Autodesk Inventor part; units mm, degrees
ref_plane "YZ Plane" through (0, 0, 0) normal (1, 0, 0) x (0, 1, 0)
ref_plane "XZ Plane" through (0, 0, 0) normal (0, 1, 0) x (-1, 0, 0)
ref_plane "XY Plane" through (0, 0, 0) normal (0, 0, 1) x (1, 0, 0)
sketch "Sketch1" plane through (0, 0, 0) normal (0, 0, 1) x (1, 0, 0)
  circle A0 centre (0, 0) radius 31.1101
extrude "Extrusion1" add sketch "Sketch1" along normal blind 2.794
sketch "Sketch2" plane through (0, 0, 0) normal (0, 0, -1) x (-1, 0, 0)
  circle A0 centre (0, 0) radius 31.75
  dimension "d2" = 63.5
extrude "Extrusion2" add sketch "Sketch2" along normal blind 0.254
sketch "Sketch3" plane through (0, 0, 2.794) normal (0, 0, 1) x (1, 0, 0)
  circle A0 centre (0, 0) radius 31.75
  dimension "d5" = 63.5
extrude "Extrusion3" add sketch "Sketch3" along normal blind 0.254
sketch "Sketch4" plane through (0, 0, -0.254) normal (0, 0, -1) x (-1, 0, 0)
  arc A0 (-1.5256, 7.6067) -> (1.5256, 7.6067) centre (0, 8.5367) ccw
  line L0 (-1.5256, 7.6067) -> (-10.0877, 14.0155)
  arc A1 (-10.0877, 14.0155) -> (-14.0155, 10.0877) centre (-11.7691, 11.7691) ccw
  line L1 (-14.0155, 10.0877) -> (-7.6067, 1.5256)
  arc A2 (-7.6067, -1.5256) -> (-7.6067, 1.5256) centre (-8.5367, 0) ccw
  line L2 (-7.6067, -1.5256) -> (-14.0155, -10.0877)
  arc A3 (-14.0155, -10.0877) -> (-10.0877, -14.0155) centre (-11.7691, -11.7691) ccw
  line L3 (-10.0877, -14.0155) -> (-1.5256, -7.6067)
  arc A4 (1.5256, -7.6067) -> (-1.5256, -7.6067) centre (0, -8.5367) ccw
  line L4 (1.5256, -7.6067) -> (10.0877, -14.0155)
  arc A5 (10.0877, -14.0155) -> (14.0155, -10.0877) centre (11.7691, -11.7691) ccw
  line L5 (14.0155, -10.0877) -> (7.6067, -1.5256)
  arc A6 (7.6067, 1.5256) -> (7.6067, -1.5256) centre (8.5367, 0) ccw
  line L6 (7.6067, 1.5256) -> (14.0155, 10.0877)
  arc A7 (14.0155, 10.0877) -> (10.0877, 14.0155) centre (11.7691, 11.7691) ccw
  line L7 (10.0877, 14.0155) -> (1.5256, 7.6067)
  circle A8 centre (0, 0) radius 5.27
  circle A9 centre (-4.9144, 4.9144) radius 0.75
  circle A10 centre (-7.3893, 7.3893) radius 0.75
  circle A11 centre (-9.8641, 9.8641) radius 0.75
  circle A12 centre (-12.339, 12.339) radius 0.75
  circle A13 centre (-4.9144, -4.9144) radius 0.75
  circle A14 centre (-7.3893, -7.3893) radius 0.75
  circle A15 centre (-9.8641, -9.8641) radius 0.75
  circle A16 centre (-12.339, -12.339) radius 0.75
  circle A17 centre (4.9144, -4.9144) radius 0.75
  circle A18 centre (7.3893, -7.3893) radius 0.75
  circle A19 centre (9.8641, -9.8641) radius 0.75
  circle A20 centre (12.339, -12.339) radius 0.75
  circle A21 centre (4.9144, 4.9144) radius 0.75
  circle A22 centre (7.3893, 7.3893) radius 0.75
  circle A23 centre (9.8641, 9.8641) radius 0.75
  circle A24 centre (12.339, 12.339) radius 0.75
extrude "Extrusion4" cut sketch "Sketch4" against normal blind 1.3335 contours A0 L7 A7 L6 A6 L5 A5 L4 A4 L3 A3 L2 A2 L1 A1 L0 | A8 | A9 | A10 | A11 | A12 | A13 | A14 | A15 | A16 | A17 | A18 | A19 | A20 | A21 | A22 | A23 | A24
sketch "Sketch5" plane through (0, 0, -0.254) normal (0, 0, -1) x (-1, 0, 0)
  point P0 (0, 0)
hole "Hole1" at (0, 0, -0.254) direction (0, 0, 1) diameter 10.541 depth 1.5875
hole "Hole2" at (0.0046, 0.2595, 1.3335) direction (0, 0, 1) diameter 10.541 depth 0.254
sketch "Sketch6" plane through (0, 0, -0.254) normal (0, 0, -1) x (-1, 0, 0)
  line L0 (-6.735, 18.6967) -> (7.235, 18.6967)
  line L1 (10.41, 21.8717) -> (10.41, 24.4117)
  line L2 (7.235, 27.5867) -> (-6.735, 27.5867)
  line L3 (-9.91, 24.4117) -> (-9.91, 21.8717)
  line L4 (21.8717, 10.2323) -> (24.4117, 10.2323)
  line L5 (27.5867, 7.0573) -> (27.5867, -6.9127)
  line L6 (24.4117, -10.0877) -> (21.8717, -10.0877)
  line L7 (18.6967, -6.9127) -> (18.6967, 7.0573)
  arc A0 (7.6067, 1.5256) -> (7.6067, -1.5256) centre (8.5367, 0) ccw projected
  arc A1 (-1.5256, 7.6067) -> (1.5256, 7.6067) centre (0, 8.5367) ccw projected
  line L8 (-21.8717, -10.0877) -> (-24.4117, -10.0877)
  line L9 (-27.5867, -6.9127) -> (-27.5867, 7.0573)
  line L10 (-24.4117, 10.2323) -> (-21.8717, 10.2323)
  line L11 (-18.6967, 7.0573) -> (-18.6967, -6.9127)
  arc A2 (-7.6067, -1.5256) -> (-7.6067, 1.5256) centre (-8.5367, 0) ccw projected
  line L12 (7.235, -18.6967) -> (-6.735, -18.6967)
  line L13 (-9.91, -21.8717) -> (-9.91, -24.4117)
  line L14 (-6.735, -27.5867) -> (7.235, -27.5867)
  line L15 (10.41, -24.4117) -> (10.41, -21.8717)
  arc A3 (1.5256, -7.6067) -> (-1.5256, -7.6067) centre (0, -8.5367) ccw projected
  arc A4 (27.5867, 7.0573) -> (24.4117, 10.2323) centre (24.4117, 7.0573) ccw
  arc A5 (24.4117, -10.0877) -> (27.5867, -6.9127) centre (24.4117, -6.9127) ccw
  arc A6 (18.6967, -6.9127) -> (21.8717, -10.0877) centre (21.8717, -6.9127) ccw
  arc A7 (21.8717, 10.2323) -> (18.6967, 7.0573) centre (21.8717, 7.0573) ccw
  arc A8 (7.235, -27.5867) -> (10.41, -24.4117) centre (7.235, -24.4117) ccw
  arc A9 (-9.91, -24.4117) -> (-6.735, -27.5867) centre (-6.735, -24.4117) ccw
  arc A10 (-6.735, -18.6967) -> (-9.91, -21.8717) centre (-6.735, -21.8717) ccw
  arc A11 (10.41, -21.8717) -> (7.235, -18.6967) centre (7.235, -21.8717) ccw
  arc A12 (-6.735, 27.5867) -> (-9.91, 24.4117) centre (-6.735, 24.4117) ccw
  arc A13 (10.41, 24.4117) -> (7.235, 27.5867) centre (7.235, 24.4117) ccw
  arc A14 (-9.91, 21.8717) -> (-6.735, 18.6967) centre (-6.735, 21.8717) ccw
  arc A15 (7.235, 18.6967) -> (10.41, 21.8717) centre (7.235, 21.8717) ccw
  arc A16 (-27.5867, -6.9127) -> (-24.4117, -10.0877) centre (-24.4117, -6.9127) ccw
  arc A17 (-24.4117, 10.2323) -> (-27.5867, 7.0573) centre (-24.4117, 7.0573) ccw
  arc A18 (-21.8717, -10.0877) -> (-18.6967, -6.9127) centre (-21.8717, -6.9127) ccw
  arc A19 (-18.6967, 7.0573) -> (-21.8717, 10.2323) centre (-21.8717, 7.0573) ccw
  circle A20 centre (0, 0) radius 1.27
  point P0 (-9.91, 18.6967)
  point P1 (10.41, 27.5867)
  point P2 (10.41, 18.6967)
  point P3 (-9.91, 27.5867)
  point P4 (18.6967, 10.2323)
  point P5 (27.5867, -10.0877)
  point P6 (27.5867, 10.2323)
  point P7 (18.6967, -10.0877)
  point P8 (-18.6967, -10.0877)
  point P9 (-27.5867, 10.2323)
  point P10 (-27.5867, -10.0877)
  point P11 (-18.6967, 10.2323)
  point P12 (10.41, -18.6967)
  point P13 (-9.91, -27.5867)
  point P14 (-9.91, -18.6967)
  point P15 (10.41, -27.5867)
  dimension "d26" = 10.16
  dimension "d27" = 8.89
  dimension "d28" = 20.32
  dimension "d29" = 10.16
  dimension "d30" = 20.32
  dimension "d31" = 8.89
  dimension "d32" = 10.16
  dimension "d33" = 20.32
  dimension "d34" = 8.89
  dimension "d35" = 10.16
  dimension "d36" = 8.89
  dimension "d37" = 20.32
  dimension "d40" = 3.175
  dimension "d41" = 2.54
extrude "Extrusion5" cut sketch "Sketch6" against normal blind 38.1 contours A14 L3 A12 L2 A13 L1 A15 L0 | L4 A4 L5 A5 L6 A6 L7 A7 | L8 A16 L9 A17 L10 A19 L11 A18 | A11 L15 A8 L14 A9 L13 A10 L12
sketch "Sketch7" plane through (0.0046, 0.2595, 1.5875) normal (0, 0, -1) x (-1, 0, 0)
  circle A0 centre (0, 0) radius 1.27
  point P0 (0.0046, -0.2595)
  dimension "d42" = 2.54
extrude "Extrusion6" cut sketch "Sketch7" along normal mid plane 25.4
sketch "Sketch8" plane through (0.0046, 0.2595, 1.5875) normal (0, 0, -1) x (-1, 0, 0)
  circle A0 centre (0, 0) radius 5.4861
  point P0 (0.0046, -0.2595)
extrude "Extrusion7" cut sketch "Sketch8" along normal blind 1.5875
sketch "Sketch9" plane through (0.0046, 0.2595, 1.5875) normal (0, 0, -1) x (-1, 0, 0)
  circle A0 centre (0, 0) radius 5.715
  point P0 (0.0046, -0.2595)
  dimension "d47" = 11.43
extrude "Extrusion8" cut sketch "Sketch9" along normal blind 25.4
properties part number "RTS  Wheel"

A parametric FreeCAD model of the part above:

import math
import FreeCAD as App
import Part
import Sketcher
Q = App.Units.Quantity

doc = App.newDocument("Part")
body = doc.addObject("PartDesign::Body", "Body")

# Sketch on XY plane
sketch1 = body.newObject("Sketcher::SketchObject", "Sketch")
sketch1.AttachmentSupport = (doc.getObject("XY_Plane"), [""])
sketch1.MapMode = "FlatFace"
sketch1.addGeometry(Part.Circle(App.Vector(0, 0, 0), App.Vector(0, 0, 1), 31), False)
sketch1.addConstraint([
    Sketcher.Constraint("Coincident", 0, 3, -1, 1),
    Sketcher.Constraint("Diameter", 0, 62.2202),
])
pad1 = body.newObject("PartDesign::Pad", "Pad")
pad1.Profile = sketch1
pad1.Length = Q("0.11 in")

# Sketch on XY plane
sketch2 = body.newObject("Sketcher::SketchObject", "Sketch001")
sketch2.AttachmentSupport = (doc.getObject("XY_Plane"), [""])
sketch2.MapMode = "FlatFace"
sketch2.addGeometry(Part.Circle(App.Vector(0, 0, 0), App.Vector(0, 0, 1), 32), False)
sketch2.addConstraint([
    Sketcher.Constraint("Coincident", 0, 3, -1, 1),
    Sketcher.Constraint("Diameter", 0, Q("2.5 in")),
])
pad2 = body.newObject("PartDesign::Pad", "Pad001")
pad2.Profile = sketch2
pad2.Length = Q("0.01 in")
pad2.Reversed = True

# Sketch on XY plane
sketch3 = body.newObject("Sketcher::SketchObject", "Sketch002")
sketch3.AttachmentSupport = (doc.getObject("XY_Plane"), [""])
sketch3.MapMode = "FlatFace"
sketch3.AttachmentOffset = App.Placement(App.Vector(0, 0, 0.11 * 25.4), App.Rotation())
sketch3.addGeometry(Part.Circle(App.Vector(0, 0, 0), App.Vector(0, 0, 1), 32), False)
sketch3.addConstraint([
    Sketcher.Constraint("Coincident", 0, 3, -1, 1),
    Sketcher.Constraint("Diameter", 0, Q("2.5 in")),
])
pad3 = body.newObject("PartDesign::Pad", "Pad002")
pad3.Profile = sketch3
pad3.Length = Q("0.01 in")

# Sketch on XY plane
sketch4 = body.newObject("Sketcher::SketchObject", "Sketch003")
sketch4.AttachmentSupport = (doc.getObject("XY_Plane"), [""])
sketch4.MapMode = "FlatFace"
sketch4.AttachmentOffset = App.Placement(App.Vector(0, 0, -0.01 * 25.4), App.Rotation())
sketch4.addGeometry([
    Part.ArcOfCircle(Part.Circle(App.Vector(0, 8.5367, 0), App.Vector(0, 0, 1), 1.786716), math.radians(-148.633673), math.radians(-31.366327)),  # 0
    Part.LineSegment(App.Vector(1.5256, 7.6067, 0), App.Vector(10.0877, 14.0155, 0)),  # 1
    Part.ArcOfCircle(Part.Circle(App.Vector(11.7691, 11.7691, 0), App.Vector(0, 0, 1), 2.805961), math.radians(-36.814357), math.radians(126.814357)),  # 2
    Part.LineSegment(App.Vector(14.0155, 10.0877, 0), App.Vector(7.6067, 1.5256, 0)),  # 3
    Part.ArcOfCircle(Part.Circle(App.Vector(8.5367, 0, 0), App.Vector(0, 0, 1), 1.786716), math.radians(121.366327), math.radians(238.633673)),  # 4
    Part.LineSegment(App.Vector(7.6067, -1.5256, 0), App.Vector(14.0155, -10.0877, 0)),  # 5
    Part.ArcOfCircle(Part.Circle(App.Vector(11.7691, -11.7691, 0), App.Vector(0, 0, 1), 2.805961), math.radians(-126.814357), math.radians(36.814357)),  # 6
    Part.LineSegment(App.Vector(10.0877, -14.0155, 0), App.Vector(1.5256, -7.6067, 0)),  # 7
    Part.ArcOfCircle(Part.Circle(App.Vector(0, -8.5367, 0), App.Vector(0, 0, 1), 1.786716), math.radians(31.366327), math.radians(148.633673)),  # 8
    Part.LineSegment(App.Vector(-1.5256, -7.6067, 0), App.Vector(-10.0877, -14.0155, 0)),  # 9
    Part.ArcOfCircle(Part.Circle(App.Vector(-11.7691, -11.7691, 0), App.Vector(0, 0, 1), 2.805961), math.radians(143.185643), math.radians(306.814357)),  # 10
    Part.LineSegment(App.Vector(-14.0155, -10.0877, 0), App.Vector(-7.6067, -1.5256, 0)),  # 11
    Part.ArcOfCircle(Part.Circle(App.Vector(-8.5367, 0, 0), App.Vector(0, 0, 1), 1.786716), math.radians(-58.633673), math.radians(58.633673)),  # 12
    Part.LineSegment(App.Vector(-7.6067, 1.5256, 0), App.Vector(-14.0155, 10.0877, 0)),  # 13
    Part.ArcOfCircle(Part.Circle(App.Vector(-11.7691, 11.7691, 0), App.Vector(0, 0, 1), 2.805961), math.radians(53.185643), math.radians(216.814357)),  # 14
    Part.LineSegment(App.Vector(-10.0877, 14.0155, 0), App.Vector(-1.5256, 7.6067, 0)),  # 15
], False)
sketch4.addConstraint([
    Sketcher.Constraint("Coincident", 0, 2, 1, 1),
    Sketcher.Constraint("Coincident", 1, 2, 2, 2),
    Sketcher.Constraint("Coincident", 2, 1, 3, 1),
    Sketcher.Constraint("Coincident", 3, 2, 4, 1),
    Sketcher.Constraint("Coincident", 4, 2, 5, 1),
    Sketcher.Constraint("Coincident", 5, 2, 6, 2),
    Sketcher.Constraint("Coincident", 6, 1, 7, 1),
    Sketcher.Constraint("Coincident", 7, 2, 8, 1),
    Sketcher.Constraint("Coincident", 8, 2, 9, 1),
    Sketcher.Constraint("Coincident", 9, 2, 10, 2),
    Sketcher.Constraint("Coincident", 10, 1, 11, 1),
    Sketcher.Constraint("Coincident", 11, 2, 12, 1),
    Sketcher.Constraint("Coincident", 12, 2, 13, 1),
    Sketcher.Constraint("Coincident", 13, 2, 14, 2),
    Sketcher.Constraint("Coincident", 14, 1, 15, 1),
    Sketcher.Constraint("Coincident", 15, 2, 0, 1),
    Sketcher.Constraint("PointOnObject", 0, 3, -2),
    Sketcher.Constraint("PointOnObject", 4, 3, -1),
    Sketcher.Constraint("PointOnObject", 8, 3, -2),
    Sketcher.Constraint("PointOnObject", 12, 3, -1),
    Sketcher.Constraint("Radius", 0, 1.7867),
    Sketcher.Constraint("Radius", 2, 2.806),
    Sketcher.Constraint("Radius", 4, 1.7867),
    Sketcher.Constraint("Radius", 6, 2.806),
    Sketcher.Constraint("Radius", 8, 1.7867),
    Sketcher.Constraint("Radius", 10, 2.806),
    Sketcher.Constraint("Radius", 12, 1.7867),
    Sketcher.Constraint("Radius", 14, 2.806),
    Sketcher.Constraint("DistanceY", -1, 1, 0, 3, Q("0.3361 in")),
    Sketcher.Constraint("DistanceX", -1, 1, 4, 3, Q("0.3361 in")),
    Sketcher.Constraint("DistanceY", 8, 3, -1, 1, Q("0.3361 in")),
    Sketcher.Constraint("DistanceX", 12, 3, -1, 1, Q("0.3361 in")),
    Sketcher.Constraint("DistanceY", -1, 1, 1, 2, Q("0.5518 in")),
    Sketcher.Constraint("DistanceX", -1, 1, 2, 1, Q("0.5518 in")),
    Sketcher.Constraint("DistanceX", -1, 1, 5, 2, Q("0.5518 in")),
    Sketcher.Constraint("DistanceY", 6, 1, -1, 1, Q("0.5518 in")),
    Sketcher.Constraint("DistanceY", 9, 2, -1, 1, Q("0.5518 in")),
    Sketcher.Constraint("DistanceX", 10, 1, -1, 1, Q("0.5518 in")),
    Sketcher.Constraint("DistanceX", 13, 2, -1, 1, Q("0.5518 in")),
    Sketcher.Constraint("DistanceY", -1, 1, 14, 1, Q("0.5518 in")),
    Sketcher.Constraint("DistanceY", 6, 3, 2, 3, Q("0.9267 in")),
    Sketcher.Constraint("DistanceX", 10, 3, 6, 3, Q("0.9267 in")),
    Sketcher.Constraint("DistanceX", 10, 3, 2, 3, Q("0.9267 in")),
    Sketcher.Constraint("DistanceY", 10, 3, 2, 3, Q("0.9267 in")),
    Sketcher.Constraint("DistanceX", 14, 3, 2, 3, Q("0.9267 in")),
    Sketcher.Constraint("DistanceX", 1, 2, 2, 3, Q("0.0662 in")),
    Sketcher.Constraint("DistanceX", 0, 2, 1, 2, Q("0.3371 in")),
    Sketcher.Constraint("DistanceY", 2, 1, 2, 3, Q("0.0662 in")),
    Sketcher.Constraint("DistanceY", 3, 2, 2, 1, Q("0.3371 in")),
    Sketcher.Constraint("DistanceY", 5, 2, 4, 2, Q("0.3371 in")),
    Sketcher.Constraint("DistanceX", 7, 2, 6, 1, Q("0.3371 in")),
    Sketcher.Constraint("DistanceX", 9, 2, 8, 2, Q("0.3371 in")),
    Sketcher.Constraint("DistanceY", 10, 1, 11, 2, Q("0.3371 in")),
    Sketcher.Constraint("DistanceY", 12, 2, 13, 2, Q("0.3371 in")),
    Sketcher.Constraint("DistanceX", 14, 3, 14, 1, Q("0.0662 in")),
    Sketcher.Constraint("DistanceX", 14, 1, 15, 2, Q("0.3371 in")),
])
pocket1 = body.newObject("PartDesign::Pocket", "Pocket")
pocket1.Profile = sketch4
pocket1.Length = Q("0.0525 in")
pocket1.Reversed = True

# Sketch on XY plane
sketch5 = body.newObject("Sketcher::SketchObject", "Sketch004")
sketch5.AttachmentSupport = (doc.getObject("XY_Plane"), [""])
sketch5.MapMode = "FlatFace"
sketch5.AttachmentOffset = App.Placement(App.Vector(0, 0, -0.01 * 25.4), App.Rotation())
sketch5.addGeometry(Part.Circle(App.Vector(0, 0, 0), App.Vector(0, 0, 1), 5), False)
sketch5.addConstraint([
    Sketcher.Constraint("Coincident", 0, 3, -1, 1),
    Sketcher.Constraint("Diameter", 0, Q("0.415 in")),
])
doc.recompute()
hole = body.newObject("PartDesign::Hole", "Hole")
hole.Profile = sketch5
hole.ThreadType = "None"
hole.Diameter = Q("0.415 in")
hole.DepthType = "Dimension"
hole.Depth = Q("0.0625 in")
hole.DrillPoint = "Flat"
hole.Reversed = True

# Sketch on XY plane
sketch6 = body.newObject("Sketcher::SketchObject", "Sketch005")
sketch6.AttachmentSupport = (doc.getObject("XY_Plane"), [""])
sketch6.MapMode = "FlatFace"
sketch6.AttachmentOffset = App.Placement(App.Vector(0, 0, 0.0525 * 25.4), App.Rotation())
sketch6.addGeometry(Part.Circle(App.Vector(0, 0, 0), App.Vector(0, 0, 1), 5), False)
sketch6.addConstraint([
    Sketcher.Constraint("Diameter", 0, Q("0.415 in")),
    Sketcher.Constraint("DistanceX", -1, 1, 0, 3, 0.0046),
    Sketcher.Constraint("DistanceY", -1, 1, 0, 3, 0.2595),
])
doc.recompute()
hole2 = body.newObject("PartDesign::Hole", "Hole001")
hole2.Profile = sketch6
hole2.ThreadType = "None"
hole2.Diameter = Q("0.415 in")
hole2.DepthType = "Dimension"
hole2.Depth = Q("0.01 in")
hole2.DrillPoint = "Flat"
hole2.Reversed = True

# Sketch on XY plane
sketch7 = body.newObject("Sketcher::SketchObject", "Sketch006")
sketch7.AttachmentSupport = (doc.getObject("XY_Plane"), [""])
sketch7.MapMode = "FlatFace"
sketch7.AttachmentOffset = App.Placement(App.Vector(0, 0, -0.01 * 25.4), App.Rotation())
sketch7.addGeometry([
    Part.ArcOfCircle(Part.Circle(App.Vector(6.7, 21.9, 0), App.Vector(0, 0, 1), 3.2), math.radians(-90), math.radians(0)),  # 0
    Part.LineSegment(App.Vector(6.7, 18.7, 0), App.Vector(-7.2, 18.7, 0)),  # 1
    Part.ArcOfCircle(Part.Circle(App.Vector(-7.2, 21.9, 0), App.Vector(0, 0, 1), 3.2), math.radians(180), math.radians(270)),  # 2
    Part.LineSegment(App.Vector(-10.4, 21.9, 0), App.Vector(-10.4, 24.4, 0)),  # 3
    Part.ArcOfCircle(Part.Circle(App.Vector(-7.2, 24.4, 0), App.Vector(0, 0, 1), 3.2), math.radians(90), math.radians(180)),  # 4
    Part.LineSegment(App.Vector(-7.2, 27.6, 0), App.Vector(6.7, 27.6, 0)),  # 5
    Part.ArcOfCircle(Part.Circle(App.Vector(6.7, 24.4, 0), App.Vector(0, 0, 1), 3.2), math.radians(0), math.radians(90)),  # 6
    Part.LineSegment(App.Vector(9.9, 24.4, 0), App.Vector(9.9, 21.9, 0)),  # 7
    Part.LineSegment(App.Vector(-24.4, 10.2, 0), App.Vector(-21.9, 10.2, 0)),  # 8
    Part.ArcOfCircle(Part.Circle(App.Vector(-21.9, 7.1, 0), App.Vector(0, 0, 1), 3.2), math.radians(0), math.radians(90)),  # 9
    Part.LineSegment(App.Vector(-18.7, 7.1, 0), App.Vector(-18.7, -6.9, 0)),  # 10
    Part.ArcOfCircle(Part.Circle(App.Vector(-21.9, -6.9, 0), App.Vector(0, 0, 1), 3.2), math.radians(-90), math.radians(0)),  # 11
    Part.LineSegment(App.Vector(-21.9, -10.1, 0), App.Vector(-24.4, -10.1, 0)),  # 12
    Part.ArcOfCircle(Part.Circle(App.Vector(-24.4, -6.9, 0), App.Vector(0, 0, 1), 3.2), math.radians(180), math.radians(270)),  # 13
    Part.LineSegment(App.Vector(-27.6, -6.9, 0), App.Vector(-27.6, 7.1, 0)),  # 14
    Part.ArcOfCircle(Part.Circle(App.Vector(-24.4, 7.1, 0), App.Vector(0, 0, 1), 3.2), math.radians(90), math.radians(180)),  # 15
    Part.LineSegment(App.Vector(24.4, -10.1, 0), App.Vector(21.9, -10.1, 0)),  # 16
    Part.ArcOfCircle(Part.Circle(App.Vector(21.9, -6.9, 0), App.Vector(0, 0, 1), 3.2), math.radians(180), math.radians(270)),  # 17
    Part.LineSegment(App.Vector(18.7, -6.9, 0), App.Vector(18.7, 7.1, 0)),  # 18
    Part.ArcOfCircle(Part.Circle(App.Vector(21.9, 7.1, 0), App.Vector(0, 0, 1), 3.2), math.radians(90), math.radians(180)),  # 19
    Part.LineSegment(App.Vector(21.9, 10.2, 0), App.Vector(24.4, 10.2, 0)),  # 20
    Part.ArcOfCircle(Part.Circle(App.Vector(24.4, 7.1, 0), App.Vector(0, 0, 1), 3.2), math.radians(0), math.radians(90)),  # 21
    Part.LineSegment(App.Vector(27.6, 7.1, 0), App.Vector(27.6, -6.9, 0)),  # 22
    Part.ArcOfCircle(Part.Circle(App.Vector(24.4, -6.9, 0), App.Vector(0, 0, 1), 3.2), math.radians(-90), math.radians(0)),  # 23
    Part.ArcOfCircle(Part.Circle(App.Vector(-7.2, -21.9, 0), App.Vector(0, 0, 1), 3.2), math.radians(90), math.radians(180)),  # 24
    Part.LineSegment(App.Vector(-7.2, -18.7, 0), App.Vector(6.7, -18.7, 0)),  # 25
    Part.ArcOfCircle(Part.Circle(App.Vector(6.7, -21.9, 0), App.Vector(0, 0, 1), 3.2), math.radians(0), math.radians(90)),  # 26
    Part.LineSegment(App.Vector(9.9, -21.9, 0), App.Vector(9.9, -24.4, 0)),  # 27
    Part.ArcOfCircle(Part.Circle(App.Vector(6.7, -24.4, 0), App.Vector(0, 0, 1), 3.2), math.radians(-90), math.radians(0)),  # 28
    Part.LineSegment(App.Vector(6.7, -27.6, 0), App.Vector(-7.2, -27.6, 0)),  # 29
    Part.ArcOfCircle(Part.Circle(App.Vector(-7.2, -24.4, 0), App.Vector(0, 0, 1), 3.2), math.radians(180), math.radians(270)),  # 30
    Part.LineSegment(App.Vector(-10.4, -24.4, 0), App.Vector(-10.4, -21.9, 0)),  # 31
], False)
sketch7.addConstraint([
    Sketcher.Constraint("Tangent", 0, 1, 1, 1),
    Sketcher.Constraint("Tangent", 1, 2, 2, 2),
    Sketcher.Constraint("Tangent", 2, 1, 3, 1),
    Sketcher.Constraint("Tangent", 3, 2, 4, 2),
    Sketcher.Constraint("Tangent", 4, 1, 5, 1),
    Sketcher.Constraint("Tangent", 5, 2, 6, 2),
    Sketcher.Constraint("Tangent", 6, 1, 7, 1),
    Sketcher.Constraint("Tangent", 7, 2, 0, 2),
    Sketcher.Constraint("Tangent", 8, 2, 9, 2),
    Sketcher.Constraint("Tangent", 9, 1, 10, 1),
    Sketcher.Constraint("Tangent", 10, 2, 11, 2),
    Sketcher.Constraint("Tangent", 11, 1, 12, 1),
    Sketcher.Constraint("Tangent", 12, 2, 13, 2),
    Sketcher.Constraint("Tangent", 13, 1, 14, 1),
    Sketcher.Constraint("Tangent", 14, 2, 15, 2),
    Sketcher.Constraint("Tangent", 15, 1, 8, 1),
    Sketcher.Constraint("Tangent", 16, 2, 17, 2),
    Sketcher.Constraint("Tangent", 17, 1, 18, 1),
    Sketcher.Constraint("Tangent", 18, 2, 19, 2),
    Sketcher.Constraint("Tangent", 19, 1, 20, 1),
    Sketcher.Constraint("Tangent", 20, 2, 21, 2),
    Sketcher.Constraint("Tangent", 21, 1, 22, 1),
    Sketcher.Constraint("Tangent", 22, 2, 23, 2),
    Sketcher.Constraint("Tangent", 23, 1, 16, 1),
    Sketcher.Constraint("Tangent", 24, 1, 25, 1),
    Sketcher.Constraint("Tangent", 25, 2, 26, 2),
    Sketcher.Constraint("Tangent", 26, 1, 27, 1),
    Sketcher.Constraint("Tangent", 27, 2, 28, 2),
    Sketcher.Constraint("Tangent", 28, 1, 29, 1),
    Sketcher.Constraint("Tangent", 29, 2, 30, 2),
    Sketcher.Constraint("Tangent", 30, 1, 31, 1),
    Sketcher.Constraint("Tangent", 31, 2, 24, 2),
    Sketcher.Constraint("Horizontal", 1),
    Sketcher.Constraint("Vertical", 3),
    Sketcher.Constraint("Horizontal", 5),
    Sketcher.Constraint("Vertical", 7),
    Sketcher.Constraint("Horizontal", 8),
    Sketcher.Constraint("Vertical", 10),
    Sketcher.Constraint("Horizontal", 12),
    Sketcher.Constraint("Vertical", 14),
    Sketcher.Constraint("Horizontal", 16),
    Sketcher.Constraint("Vertical", 18),
    Sketcher.Constraint("Horizontal", 20),
    Sketcher.Constraint("Vertical", 22),
    Sketcher.Constraint("Horizontal", 25),
    Sketcher.Constraint("Vertical", 27),
    Sketcher.Constraint("Horizontal", 29),
    Sketcher.Constraint("Vertical", 31),
    Sketcher.Constraint("Equal", 0, 2),
    Sketcher.Constraint("Equal", 2, 4),
    Sketcher.Constraint("Equal", 4, 6),
    Sketcher.Constraint("Equal", 6, 9),
    Sketcher.Constraint("Equal", 9, 11),
    Sketcher.Constraint("Equal", 11, 13),
    Sketcher.Constraint("Equal", 13, 15),
    Sketcher.Constraint("Equal", 15, 17),
    Sketcher.Constraint("Equal", 17, 19),
    Sketcher.Constraint("Equal", 19, 21),
    Sketcher.Constraint("Equal", 21, 23),
    Sketcher.Constraint("Equal", 23, 24),
    Sketcher.Constraint("Equal", 24, 26),
    Sketcher.Constraint("Equal", 26, 28),
    Sketcher.Constraint("Equal", 28, 30),
    Sketcher.Constraint("Symmetric", 11, 3, 17, 3, -2),
    Sketcher.Constraint("Symmetric", 15, 3, 21, 3, -2),
    Sketcher.Constraint("Symmetric", 2, 3, 24, 3, -1),
    Sketcher.Constraint("Symmetric", 6, 3, 28, 3, -1),
    Sketcher.Constraint("Equal", 20, 3),
    Sketcher.Constraint("Equal", 29, 10),
    Sketcher.Constraint("DistanceX", 8, 1, 8, 2, Q("0.1 in")),
    Sketcher.Constraint("Radius", 0, Q("0.125 in")),
    Sketcher.Constraint("DistanceX", 1, 2, 1, 1, Q("0.55 in")),
    Sketcher.Constraint("DistanceY", -1, 1, 0, 3, Q("0.8611 in")),
    Sketcher.Constraint("DistanceX", 9, 3, -1, 1, Q("0.8611 in")),
    Sketcher.Constraint("DistanceX", -1, 1, 0, 3, 6.735),
    Sketcher.Constraint("DistanceY", -1, 1, 9, 3, 7.0573),
])
pocket2 = body.newObject("PartDesign::Pocket", "Pocket001")
pocket2.Profile = sketch7
pocket2.Length = Q("1.5 in")
pocket2.Reversed = True

# Sketch on XY plane
sketch8 = body.newObject("Sketcher::SketchObject", "Sketch007")
sketch8.AttachmentSupport = (doc.getObject("XY_Plane"), [""])
sketch8.MapMode = "FlatFace"
sketch8.AttachmentOffset = App.Placement(App.Vector(0, 0, 0.0625 * 25.4), App.Rotation())
sketch8.addGeometry(Part.Circle(App.Vector(0, 0.3, 0), App.Vector(0, 0, 1), 1.3), False)
sketch8.addConstraint([
    Sketcher.Constraint("Diameter", 0, Q("0.1 in")),
    Sketcher.Constraint("DistanceX", -1, 1, 0, 3, 0.0046),
    Sketcher.Constraint("DistanceY", -1, 1, 0, 3, 0.2595),
])
pocket3 = body.newObject("PartDesign::Pocket", "Pocket002")
pocket3.Profile = sketch8
pocket3.Length = Q("1 in")
pocket3.Midplane = True

# Sketch on XY plane
sketch9 = body.newObject("Sketcher::SketchObject", "Sketch008")
sketch9.AttachmentSupport = (doc.getObject("XY_Plane"), [""])
sketch9.MapMode = "FlatFace"
sketch9.AttachmentOffset = App.Placement(App.Vector(0, 0, 0.0625 * 25.4), App.Rotation())
sketch9.addGeometry(Part.Circle(App.Vector(0, 0, 0), App.Vector(0, 0, 1), 5), False)
sketch9.addConstraint([
    Sketcher.Constraint("Diameter", 0, 10.9722),
    Sketcher.Constraint("DistanceX", -1, 1, 0, 3, 0.0046),
    Sketcher.Constraint("DistanceY", -1, 1, 0, 3, 0.2595),
])
pocket4 = body.newObject("PartDesign::Pocket", "Pocket003")
pocket4.Profile = sketch9
pocket4.Length = Q("0.0625 in")

# Sketch on XY plane
sketch10 = body.newObject("Sketcher::SketchObject", "Sketch009")
sketch10.AttachmentSupport = (doc.getObject("XY_Plane"), [""])
sketch10.MapMode = "FlatFace"
sketch10.AttachmentOffset = App.Placement(App.Vector(0, 0, 0.0625 * 25.4), App.Rotation())
sketch10.addGeometry(Part.Circle(App.Vector(0, 0, 0), App.Vector(0, 0, 1), 6), False)
sketch10.addConstraint([
    Sketcher.Constraint("Diameter", 0, Q("0.45 in")),
    Sketcher.Constraint("DistanceX", -1, 1, 0, 3, 0.0046),
    Sketcher.Constraint("DistanceY", -1, 1, 0, 3, 0.2595),
])
pocket5 = body.newObject("PartDesign::Pocket", "Pocket004")
pocket5.Profile = sketch10
pocket5.Length = Q("1 in")

doc.recompute()
